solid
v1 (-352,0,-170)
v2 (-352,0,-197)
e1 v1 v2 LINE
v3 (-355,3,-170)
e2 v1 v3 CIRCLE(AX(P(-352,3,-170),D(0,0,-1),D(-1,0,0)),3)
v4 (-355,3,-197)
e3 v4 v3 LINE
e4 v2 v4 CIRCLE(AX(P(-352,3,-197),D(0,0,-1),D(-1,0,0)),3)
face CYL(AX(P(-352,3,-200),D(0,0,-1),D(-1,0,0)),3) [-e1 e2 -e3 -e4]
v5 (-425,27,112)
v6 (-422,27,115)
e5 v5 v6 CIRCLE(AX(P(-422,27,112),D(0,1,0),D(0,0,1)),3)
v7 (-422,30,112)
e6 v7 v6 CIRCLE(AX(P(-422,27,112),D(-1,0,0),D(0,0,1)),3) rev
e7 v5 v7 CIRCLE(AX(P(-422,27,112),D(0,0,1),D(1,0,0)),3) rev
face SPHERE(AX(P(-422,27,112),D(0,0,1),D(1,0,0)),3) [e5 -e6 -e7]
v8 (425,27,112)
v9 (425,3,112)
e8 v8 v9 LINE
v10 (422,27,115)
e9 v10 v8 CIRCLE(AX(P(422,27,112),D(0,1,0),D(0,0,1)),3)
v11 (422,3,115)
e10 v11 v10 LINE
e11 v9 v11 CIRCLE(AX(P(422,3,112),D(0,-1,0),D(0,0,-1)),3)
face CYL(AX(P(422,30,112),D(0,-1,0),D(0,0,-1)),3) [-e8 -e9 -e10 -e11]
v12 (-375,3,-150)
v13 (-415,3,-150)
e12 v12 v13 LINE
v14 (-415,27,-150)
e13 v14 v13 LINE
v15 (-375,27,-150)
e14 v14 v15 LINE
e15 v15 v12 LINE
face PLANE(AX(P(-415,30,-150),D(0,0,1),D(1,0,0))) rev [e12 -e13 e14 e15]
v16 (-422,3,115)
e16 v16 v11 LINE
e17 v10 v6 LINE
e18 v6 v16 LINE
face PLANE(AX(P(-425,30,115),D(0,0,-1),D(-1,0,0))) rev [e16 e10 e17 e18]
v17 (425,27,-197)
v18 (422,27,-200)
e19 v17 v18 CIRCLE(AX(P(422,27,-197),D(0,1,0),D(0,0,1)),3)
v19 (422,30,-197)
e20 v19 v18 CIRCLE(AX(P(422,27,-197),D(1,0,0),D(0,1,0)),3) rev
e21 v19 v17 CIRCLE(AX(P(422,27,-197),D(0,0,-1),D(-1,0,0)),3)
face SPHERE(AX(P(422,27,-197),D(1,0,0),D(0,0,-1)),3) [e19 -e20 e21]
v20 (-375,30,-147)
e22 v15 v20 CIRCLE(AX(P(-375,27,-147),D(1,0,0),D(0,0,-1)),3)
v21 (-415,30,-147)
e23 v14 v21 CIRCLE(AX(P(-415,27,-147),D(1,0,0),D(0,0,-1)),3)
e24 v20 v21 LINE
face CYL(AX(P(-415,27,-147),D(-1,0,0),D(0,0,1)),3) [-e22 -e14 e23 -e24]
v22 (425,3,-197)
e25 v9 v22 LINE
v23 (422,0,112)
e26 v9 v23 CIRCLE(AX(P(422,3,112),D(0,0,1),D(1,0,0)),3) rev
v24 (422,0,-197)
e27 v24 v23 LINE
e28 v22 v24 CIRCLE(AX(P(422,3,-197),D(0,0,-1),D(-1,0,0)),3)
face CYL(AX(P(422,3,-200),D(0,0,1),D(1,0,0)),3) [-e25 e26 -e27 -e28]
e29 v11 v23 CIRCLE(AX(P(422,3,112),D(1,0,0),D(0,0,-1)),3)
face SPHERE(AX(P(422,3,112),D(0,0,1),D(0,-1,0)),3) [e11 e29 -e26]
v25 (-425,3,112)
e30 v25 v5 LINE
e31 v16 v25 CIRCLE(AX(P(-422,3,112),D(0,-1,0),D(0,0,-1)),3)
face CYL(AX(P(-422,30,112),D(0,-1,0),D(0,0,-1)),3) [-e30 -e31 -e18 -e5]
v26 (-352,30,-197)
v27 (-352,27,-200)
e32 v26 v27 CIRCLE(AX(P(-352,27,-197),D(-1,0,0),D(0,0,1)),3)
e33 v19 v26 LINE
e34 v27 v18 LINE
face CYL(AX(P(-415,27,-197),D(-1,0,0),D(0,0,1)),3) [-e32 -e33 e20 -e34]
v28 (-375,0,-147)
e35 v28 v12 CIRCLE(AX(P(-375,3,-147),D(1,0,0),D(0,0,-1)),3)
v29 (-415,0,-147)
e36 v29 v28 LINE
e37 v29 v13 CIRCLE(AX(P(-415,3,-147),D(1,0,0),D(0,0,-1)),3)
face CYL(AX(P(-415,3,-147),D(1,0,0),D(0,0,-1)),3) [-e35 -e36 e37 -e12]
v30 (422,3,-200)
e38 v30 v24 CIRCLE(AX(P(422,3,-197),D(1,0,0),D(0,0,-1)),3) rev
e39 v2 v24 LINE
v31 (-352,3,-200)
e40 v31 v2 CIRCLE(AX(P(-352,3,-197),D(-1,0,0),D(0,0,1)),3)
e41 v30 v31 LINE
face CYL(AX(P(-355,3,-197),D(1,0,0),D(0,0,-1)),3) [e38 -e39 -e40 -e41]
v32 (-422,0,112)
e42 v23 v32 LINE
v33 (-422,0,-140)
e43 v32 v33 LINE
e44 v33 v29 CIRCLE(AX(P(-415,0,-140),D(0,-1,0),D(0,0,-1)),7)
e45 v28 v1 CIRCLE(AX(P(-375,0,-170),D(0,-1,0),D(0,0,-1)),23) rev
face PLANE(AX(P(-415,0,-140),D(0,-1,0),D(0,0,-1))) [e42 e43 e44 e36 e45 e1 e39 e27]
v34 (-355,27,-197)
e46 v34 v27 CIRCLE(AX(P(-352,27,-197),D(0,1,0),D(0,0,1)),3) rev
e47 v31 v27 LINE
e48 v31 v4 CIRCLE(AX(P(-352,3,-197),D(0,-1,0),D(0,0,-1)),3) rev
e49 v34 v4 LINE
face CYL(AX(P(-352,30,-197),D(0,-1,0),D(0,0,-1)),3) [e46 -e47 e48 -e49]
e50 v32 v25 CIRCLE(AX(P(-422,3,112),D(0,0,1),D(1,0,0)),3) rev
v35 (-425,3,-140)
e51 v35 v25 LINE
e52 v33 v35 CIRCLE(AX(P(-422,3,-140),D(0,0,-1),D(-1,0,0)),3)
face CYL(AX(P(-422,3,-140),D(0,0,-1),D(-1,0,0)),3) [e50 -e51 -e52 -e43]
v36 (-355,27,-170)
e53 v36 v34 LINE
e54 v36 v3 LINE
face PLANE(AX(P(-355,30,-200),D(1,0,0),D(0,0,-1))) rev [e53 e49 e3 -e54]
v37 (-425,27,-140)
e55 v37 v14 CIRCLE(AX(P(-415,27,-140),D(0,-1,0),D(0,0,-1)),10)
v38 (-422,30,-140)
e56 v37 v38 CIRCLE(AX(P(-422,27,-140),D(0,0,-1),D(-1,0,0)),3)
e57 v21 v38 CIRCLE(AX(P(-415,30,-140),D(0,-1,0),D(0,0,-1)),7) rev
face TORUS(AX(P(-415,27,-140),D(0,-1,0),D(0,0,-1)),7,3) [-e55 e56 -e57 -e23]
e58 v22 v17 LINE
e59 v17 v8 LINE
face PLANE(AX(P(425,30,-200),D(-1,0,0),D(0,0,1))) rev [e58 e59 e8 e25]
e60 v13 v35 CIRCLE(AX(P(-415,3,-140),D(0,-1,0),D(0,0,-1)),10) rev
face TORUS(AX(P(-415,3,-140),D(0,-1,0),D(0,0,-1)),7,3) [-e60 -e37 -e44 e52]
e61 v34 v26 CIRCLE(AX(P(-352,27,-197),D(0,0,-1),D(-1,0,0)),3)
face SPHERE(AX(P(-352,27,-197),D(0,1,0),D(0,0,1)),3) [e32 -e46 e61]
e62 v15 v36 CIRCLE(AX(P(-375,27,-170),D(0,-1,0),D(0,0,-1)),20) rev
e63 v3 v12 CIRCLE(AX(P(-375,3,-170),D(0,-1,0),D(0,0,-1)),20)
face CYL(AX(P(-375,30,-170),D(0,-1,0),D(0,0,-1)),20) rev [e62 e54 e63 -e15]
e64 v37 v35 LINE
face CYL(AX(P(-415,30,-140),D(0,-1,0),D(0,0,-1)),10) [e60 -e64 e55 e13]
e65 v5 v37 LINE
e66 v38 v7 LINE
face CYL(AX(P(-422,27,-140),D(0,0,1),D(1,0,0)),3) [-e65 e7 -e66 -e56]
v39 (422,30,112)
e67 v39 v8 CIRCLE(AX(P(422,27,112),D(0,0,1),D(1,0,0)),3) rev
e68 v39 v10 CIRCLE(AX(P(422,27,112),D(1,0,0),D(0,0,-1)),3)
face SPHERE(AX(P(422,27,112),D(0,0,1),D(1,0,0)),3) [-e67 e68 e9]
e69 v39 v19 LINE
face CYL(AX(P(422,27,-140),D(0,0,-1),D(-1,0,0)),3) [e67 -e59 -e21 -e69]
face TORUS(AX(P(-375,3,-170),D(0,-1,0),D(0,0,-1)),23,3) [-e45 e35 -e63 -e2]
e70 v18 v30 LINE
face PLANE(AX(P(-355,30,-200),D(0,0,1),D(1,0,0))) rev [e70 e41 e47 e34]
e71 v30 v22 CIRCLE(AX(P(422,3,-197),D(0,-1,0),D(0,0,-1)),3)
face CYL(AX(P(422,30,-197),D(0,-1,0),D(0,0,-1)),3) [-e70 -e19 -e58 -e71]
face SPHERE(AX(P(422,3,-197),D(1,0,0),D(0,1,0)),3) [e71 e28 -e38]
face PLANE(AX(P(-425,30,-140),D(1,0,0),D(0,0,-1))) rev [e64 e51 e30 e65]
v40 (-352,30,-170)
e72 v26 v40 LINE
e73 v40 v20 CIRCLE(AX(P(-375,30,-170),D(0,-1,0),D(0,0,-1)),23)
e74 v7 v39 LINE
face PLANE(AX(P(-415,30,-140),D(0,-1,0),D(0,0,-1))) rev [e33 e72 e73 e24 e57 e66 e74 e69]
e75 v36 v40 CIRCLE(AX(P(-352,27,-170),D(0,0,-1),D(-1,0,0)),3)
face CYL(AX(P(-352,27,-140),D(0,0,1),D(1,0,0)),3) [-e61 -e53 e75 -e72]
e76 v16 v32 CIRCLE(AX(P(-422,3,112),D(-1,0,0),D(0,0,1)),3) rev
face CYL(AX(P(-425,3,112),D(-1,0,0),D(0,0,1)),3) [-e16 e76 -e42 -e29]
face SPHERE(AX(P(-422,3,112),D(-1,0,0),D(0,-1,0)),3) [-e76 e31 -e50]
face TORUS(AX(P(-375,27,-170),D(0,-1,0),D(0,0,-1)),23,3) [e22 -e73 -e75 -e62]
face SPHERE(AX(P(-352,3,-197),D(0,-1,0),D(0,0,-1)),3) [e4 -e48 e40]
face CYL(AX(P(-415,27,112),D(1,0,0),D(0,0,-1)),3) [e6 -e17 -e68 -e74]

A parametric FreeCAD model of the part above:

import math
import FreeCAD as App
import Part
import Sketcher

V = App.Vector

doc = App.newDocument("Part")
body = doc.addObject("PartDesign::Body", "Body")

sketch1 = body.newObject("Sketcher::SketchObject", "Sketch")
sketch1.AttachmentSupport = (doc.getObject("XZ_Plane"), [""])
sketch1.MapMode = "FlatFace"
sketch1.addGeometry([
    Part.LineSegment(V(-425, -140, 0), V(-425, 115, 0)),
    Part.LineSegment(V(-425, 115, 0), V(425, 115, 0)),
    Part.LineSegment(V(425, 115, 0), V(425, -200, 0)),
    Part.LineSegment(V(425, -200, 0), V(-355, -200, 0)),
    Part.LineSegment(V(-355, -200, 0), V(-355, -170, 0)),
    Part.ArcOfCircle(Part.Circle(V(-375, -170, 0), V(0, 0, 1), 20), math.radians(0), math.radians(90)),
    Part.LineSegment(V(-375, -150, 0), V(-415, -150, 0)),
    Part.ArcOfCircle(Part.Circle(V(-415, -140, 0), V(0, 0, 1), 10), math.radians(180), math.radians(270)),
], False)
sketch1.addConstraint([
    Sketcher.Constraint("Coincident", 0, 2, 1, 1),
    Sketcher.Constraint("Coincident", 1, 2, 2, 1),
    Sketcher.Constraint("Coincident", 2, 2, 3, 1),
    Sketcher.Constraint("Coincident", 3, 2, 4, 1),
    Sketcher.Constraint("Tangent", 4, 2, 5, 1),
    Sketcher.Constraint("Tangent", 5, 2, 6, 1),
    Sketcher.Constraint("Tangent", 6, 2, 7, 2),
    Sketcher.Constraint("Tangent", 7, 1, 0, 1),
    Sketcher.Constraint("Vertical", 0),
    Sketcher.Constraint("Horizontal", 1),
    Sketcher.Constraint("Vertical", 2),
    Sketcher.Constraint("Horizontal", 3),
    Sketcher.Constraint("Vertical", 4),
    Sketcher.Constraint("Horizontal", 6),
    Sketcher.Constraint("Radius", 5, 20.0),
    Sketcher.Constraint("Radius", 7, 10.0),
    Sketcher.Constraint("DistanceX", 1, 1, 1, 2, 850.0),
    Sketcher.Constraint("DistanceX", 3, 2, 3, 1, 780.0),
    Sketcher.Constraint("DistanceY", 0, 1, 0, 2, 255.0),
    Sketcher.Constraint("DistanceY", 2, 2, 2, 1, 315.0),
    Sketcher.Constraint("DistanceX", 5, 3, -1, 1, 375.0),
    Sketcher.Constraint("DistanceY", 5, 3, -1, 1, 170.0),
])
pad1 = body.newObject("PartDesign::Pad", "Pad")
pad1.Profile = sketch1
pad1.Length = 30
pad1.Reversed = True
doc.recompute()

fillet = body.newObject("PartDesign::Fillet", "Fillet")
fillet.Base = (pad1, ["Edge1"])
fillet.UseAllEdges = True
fillet.Radius = 3

doc.recompute()
